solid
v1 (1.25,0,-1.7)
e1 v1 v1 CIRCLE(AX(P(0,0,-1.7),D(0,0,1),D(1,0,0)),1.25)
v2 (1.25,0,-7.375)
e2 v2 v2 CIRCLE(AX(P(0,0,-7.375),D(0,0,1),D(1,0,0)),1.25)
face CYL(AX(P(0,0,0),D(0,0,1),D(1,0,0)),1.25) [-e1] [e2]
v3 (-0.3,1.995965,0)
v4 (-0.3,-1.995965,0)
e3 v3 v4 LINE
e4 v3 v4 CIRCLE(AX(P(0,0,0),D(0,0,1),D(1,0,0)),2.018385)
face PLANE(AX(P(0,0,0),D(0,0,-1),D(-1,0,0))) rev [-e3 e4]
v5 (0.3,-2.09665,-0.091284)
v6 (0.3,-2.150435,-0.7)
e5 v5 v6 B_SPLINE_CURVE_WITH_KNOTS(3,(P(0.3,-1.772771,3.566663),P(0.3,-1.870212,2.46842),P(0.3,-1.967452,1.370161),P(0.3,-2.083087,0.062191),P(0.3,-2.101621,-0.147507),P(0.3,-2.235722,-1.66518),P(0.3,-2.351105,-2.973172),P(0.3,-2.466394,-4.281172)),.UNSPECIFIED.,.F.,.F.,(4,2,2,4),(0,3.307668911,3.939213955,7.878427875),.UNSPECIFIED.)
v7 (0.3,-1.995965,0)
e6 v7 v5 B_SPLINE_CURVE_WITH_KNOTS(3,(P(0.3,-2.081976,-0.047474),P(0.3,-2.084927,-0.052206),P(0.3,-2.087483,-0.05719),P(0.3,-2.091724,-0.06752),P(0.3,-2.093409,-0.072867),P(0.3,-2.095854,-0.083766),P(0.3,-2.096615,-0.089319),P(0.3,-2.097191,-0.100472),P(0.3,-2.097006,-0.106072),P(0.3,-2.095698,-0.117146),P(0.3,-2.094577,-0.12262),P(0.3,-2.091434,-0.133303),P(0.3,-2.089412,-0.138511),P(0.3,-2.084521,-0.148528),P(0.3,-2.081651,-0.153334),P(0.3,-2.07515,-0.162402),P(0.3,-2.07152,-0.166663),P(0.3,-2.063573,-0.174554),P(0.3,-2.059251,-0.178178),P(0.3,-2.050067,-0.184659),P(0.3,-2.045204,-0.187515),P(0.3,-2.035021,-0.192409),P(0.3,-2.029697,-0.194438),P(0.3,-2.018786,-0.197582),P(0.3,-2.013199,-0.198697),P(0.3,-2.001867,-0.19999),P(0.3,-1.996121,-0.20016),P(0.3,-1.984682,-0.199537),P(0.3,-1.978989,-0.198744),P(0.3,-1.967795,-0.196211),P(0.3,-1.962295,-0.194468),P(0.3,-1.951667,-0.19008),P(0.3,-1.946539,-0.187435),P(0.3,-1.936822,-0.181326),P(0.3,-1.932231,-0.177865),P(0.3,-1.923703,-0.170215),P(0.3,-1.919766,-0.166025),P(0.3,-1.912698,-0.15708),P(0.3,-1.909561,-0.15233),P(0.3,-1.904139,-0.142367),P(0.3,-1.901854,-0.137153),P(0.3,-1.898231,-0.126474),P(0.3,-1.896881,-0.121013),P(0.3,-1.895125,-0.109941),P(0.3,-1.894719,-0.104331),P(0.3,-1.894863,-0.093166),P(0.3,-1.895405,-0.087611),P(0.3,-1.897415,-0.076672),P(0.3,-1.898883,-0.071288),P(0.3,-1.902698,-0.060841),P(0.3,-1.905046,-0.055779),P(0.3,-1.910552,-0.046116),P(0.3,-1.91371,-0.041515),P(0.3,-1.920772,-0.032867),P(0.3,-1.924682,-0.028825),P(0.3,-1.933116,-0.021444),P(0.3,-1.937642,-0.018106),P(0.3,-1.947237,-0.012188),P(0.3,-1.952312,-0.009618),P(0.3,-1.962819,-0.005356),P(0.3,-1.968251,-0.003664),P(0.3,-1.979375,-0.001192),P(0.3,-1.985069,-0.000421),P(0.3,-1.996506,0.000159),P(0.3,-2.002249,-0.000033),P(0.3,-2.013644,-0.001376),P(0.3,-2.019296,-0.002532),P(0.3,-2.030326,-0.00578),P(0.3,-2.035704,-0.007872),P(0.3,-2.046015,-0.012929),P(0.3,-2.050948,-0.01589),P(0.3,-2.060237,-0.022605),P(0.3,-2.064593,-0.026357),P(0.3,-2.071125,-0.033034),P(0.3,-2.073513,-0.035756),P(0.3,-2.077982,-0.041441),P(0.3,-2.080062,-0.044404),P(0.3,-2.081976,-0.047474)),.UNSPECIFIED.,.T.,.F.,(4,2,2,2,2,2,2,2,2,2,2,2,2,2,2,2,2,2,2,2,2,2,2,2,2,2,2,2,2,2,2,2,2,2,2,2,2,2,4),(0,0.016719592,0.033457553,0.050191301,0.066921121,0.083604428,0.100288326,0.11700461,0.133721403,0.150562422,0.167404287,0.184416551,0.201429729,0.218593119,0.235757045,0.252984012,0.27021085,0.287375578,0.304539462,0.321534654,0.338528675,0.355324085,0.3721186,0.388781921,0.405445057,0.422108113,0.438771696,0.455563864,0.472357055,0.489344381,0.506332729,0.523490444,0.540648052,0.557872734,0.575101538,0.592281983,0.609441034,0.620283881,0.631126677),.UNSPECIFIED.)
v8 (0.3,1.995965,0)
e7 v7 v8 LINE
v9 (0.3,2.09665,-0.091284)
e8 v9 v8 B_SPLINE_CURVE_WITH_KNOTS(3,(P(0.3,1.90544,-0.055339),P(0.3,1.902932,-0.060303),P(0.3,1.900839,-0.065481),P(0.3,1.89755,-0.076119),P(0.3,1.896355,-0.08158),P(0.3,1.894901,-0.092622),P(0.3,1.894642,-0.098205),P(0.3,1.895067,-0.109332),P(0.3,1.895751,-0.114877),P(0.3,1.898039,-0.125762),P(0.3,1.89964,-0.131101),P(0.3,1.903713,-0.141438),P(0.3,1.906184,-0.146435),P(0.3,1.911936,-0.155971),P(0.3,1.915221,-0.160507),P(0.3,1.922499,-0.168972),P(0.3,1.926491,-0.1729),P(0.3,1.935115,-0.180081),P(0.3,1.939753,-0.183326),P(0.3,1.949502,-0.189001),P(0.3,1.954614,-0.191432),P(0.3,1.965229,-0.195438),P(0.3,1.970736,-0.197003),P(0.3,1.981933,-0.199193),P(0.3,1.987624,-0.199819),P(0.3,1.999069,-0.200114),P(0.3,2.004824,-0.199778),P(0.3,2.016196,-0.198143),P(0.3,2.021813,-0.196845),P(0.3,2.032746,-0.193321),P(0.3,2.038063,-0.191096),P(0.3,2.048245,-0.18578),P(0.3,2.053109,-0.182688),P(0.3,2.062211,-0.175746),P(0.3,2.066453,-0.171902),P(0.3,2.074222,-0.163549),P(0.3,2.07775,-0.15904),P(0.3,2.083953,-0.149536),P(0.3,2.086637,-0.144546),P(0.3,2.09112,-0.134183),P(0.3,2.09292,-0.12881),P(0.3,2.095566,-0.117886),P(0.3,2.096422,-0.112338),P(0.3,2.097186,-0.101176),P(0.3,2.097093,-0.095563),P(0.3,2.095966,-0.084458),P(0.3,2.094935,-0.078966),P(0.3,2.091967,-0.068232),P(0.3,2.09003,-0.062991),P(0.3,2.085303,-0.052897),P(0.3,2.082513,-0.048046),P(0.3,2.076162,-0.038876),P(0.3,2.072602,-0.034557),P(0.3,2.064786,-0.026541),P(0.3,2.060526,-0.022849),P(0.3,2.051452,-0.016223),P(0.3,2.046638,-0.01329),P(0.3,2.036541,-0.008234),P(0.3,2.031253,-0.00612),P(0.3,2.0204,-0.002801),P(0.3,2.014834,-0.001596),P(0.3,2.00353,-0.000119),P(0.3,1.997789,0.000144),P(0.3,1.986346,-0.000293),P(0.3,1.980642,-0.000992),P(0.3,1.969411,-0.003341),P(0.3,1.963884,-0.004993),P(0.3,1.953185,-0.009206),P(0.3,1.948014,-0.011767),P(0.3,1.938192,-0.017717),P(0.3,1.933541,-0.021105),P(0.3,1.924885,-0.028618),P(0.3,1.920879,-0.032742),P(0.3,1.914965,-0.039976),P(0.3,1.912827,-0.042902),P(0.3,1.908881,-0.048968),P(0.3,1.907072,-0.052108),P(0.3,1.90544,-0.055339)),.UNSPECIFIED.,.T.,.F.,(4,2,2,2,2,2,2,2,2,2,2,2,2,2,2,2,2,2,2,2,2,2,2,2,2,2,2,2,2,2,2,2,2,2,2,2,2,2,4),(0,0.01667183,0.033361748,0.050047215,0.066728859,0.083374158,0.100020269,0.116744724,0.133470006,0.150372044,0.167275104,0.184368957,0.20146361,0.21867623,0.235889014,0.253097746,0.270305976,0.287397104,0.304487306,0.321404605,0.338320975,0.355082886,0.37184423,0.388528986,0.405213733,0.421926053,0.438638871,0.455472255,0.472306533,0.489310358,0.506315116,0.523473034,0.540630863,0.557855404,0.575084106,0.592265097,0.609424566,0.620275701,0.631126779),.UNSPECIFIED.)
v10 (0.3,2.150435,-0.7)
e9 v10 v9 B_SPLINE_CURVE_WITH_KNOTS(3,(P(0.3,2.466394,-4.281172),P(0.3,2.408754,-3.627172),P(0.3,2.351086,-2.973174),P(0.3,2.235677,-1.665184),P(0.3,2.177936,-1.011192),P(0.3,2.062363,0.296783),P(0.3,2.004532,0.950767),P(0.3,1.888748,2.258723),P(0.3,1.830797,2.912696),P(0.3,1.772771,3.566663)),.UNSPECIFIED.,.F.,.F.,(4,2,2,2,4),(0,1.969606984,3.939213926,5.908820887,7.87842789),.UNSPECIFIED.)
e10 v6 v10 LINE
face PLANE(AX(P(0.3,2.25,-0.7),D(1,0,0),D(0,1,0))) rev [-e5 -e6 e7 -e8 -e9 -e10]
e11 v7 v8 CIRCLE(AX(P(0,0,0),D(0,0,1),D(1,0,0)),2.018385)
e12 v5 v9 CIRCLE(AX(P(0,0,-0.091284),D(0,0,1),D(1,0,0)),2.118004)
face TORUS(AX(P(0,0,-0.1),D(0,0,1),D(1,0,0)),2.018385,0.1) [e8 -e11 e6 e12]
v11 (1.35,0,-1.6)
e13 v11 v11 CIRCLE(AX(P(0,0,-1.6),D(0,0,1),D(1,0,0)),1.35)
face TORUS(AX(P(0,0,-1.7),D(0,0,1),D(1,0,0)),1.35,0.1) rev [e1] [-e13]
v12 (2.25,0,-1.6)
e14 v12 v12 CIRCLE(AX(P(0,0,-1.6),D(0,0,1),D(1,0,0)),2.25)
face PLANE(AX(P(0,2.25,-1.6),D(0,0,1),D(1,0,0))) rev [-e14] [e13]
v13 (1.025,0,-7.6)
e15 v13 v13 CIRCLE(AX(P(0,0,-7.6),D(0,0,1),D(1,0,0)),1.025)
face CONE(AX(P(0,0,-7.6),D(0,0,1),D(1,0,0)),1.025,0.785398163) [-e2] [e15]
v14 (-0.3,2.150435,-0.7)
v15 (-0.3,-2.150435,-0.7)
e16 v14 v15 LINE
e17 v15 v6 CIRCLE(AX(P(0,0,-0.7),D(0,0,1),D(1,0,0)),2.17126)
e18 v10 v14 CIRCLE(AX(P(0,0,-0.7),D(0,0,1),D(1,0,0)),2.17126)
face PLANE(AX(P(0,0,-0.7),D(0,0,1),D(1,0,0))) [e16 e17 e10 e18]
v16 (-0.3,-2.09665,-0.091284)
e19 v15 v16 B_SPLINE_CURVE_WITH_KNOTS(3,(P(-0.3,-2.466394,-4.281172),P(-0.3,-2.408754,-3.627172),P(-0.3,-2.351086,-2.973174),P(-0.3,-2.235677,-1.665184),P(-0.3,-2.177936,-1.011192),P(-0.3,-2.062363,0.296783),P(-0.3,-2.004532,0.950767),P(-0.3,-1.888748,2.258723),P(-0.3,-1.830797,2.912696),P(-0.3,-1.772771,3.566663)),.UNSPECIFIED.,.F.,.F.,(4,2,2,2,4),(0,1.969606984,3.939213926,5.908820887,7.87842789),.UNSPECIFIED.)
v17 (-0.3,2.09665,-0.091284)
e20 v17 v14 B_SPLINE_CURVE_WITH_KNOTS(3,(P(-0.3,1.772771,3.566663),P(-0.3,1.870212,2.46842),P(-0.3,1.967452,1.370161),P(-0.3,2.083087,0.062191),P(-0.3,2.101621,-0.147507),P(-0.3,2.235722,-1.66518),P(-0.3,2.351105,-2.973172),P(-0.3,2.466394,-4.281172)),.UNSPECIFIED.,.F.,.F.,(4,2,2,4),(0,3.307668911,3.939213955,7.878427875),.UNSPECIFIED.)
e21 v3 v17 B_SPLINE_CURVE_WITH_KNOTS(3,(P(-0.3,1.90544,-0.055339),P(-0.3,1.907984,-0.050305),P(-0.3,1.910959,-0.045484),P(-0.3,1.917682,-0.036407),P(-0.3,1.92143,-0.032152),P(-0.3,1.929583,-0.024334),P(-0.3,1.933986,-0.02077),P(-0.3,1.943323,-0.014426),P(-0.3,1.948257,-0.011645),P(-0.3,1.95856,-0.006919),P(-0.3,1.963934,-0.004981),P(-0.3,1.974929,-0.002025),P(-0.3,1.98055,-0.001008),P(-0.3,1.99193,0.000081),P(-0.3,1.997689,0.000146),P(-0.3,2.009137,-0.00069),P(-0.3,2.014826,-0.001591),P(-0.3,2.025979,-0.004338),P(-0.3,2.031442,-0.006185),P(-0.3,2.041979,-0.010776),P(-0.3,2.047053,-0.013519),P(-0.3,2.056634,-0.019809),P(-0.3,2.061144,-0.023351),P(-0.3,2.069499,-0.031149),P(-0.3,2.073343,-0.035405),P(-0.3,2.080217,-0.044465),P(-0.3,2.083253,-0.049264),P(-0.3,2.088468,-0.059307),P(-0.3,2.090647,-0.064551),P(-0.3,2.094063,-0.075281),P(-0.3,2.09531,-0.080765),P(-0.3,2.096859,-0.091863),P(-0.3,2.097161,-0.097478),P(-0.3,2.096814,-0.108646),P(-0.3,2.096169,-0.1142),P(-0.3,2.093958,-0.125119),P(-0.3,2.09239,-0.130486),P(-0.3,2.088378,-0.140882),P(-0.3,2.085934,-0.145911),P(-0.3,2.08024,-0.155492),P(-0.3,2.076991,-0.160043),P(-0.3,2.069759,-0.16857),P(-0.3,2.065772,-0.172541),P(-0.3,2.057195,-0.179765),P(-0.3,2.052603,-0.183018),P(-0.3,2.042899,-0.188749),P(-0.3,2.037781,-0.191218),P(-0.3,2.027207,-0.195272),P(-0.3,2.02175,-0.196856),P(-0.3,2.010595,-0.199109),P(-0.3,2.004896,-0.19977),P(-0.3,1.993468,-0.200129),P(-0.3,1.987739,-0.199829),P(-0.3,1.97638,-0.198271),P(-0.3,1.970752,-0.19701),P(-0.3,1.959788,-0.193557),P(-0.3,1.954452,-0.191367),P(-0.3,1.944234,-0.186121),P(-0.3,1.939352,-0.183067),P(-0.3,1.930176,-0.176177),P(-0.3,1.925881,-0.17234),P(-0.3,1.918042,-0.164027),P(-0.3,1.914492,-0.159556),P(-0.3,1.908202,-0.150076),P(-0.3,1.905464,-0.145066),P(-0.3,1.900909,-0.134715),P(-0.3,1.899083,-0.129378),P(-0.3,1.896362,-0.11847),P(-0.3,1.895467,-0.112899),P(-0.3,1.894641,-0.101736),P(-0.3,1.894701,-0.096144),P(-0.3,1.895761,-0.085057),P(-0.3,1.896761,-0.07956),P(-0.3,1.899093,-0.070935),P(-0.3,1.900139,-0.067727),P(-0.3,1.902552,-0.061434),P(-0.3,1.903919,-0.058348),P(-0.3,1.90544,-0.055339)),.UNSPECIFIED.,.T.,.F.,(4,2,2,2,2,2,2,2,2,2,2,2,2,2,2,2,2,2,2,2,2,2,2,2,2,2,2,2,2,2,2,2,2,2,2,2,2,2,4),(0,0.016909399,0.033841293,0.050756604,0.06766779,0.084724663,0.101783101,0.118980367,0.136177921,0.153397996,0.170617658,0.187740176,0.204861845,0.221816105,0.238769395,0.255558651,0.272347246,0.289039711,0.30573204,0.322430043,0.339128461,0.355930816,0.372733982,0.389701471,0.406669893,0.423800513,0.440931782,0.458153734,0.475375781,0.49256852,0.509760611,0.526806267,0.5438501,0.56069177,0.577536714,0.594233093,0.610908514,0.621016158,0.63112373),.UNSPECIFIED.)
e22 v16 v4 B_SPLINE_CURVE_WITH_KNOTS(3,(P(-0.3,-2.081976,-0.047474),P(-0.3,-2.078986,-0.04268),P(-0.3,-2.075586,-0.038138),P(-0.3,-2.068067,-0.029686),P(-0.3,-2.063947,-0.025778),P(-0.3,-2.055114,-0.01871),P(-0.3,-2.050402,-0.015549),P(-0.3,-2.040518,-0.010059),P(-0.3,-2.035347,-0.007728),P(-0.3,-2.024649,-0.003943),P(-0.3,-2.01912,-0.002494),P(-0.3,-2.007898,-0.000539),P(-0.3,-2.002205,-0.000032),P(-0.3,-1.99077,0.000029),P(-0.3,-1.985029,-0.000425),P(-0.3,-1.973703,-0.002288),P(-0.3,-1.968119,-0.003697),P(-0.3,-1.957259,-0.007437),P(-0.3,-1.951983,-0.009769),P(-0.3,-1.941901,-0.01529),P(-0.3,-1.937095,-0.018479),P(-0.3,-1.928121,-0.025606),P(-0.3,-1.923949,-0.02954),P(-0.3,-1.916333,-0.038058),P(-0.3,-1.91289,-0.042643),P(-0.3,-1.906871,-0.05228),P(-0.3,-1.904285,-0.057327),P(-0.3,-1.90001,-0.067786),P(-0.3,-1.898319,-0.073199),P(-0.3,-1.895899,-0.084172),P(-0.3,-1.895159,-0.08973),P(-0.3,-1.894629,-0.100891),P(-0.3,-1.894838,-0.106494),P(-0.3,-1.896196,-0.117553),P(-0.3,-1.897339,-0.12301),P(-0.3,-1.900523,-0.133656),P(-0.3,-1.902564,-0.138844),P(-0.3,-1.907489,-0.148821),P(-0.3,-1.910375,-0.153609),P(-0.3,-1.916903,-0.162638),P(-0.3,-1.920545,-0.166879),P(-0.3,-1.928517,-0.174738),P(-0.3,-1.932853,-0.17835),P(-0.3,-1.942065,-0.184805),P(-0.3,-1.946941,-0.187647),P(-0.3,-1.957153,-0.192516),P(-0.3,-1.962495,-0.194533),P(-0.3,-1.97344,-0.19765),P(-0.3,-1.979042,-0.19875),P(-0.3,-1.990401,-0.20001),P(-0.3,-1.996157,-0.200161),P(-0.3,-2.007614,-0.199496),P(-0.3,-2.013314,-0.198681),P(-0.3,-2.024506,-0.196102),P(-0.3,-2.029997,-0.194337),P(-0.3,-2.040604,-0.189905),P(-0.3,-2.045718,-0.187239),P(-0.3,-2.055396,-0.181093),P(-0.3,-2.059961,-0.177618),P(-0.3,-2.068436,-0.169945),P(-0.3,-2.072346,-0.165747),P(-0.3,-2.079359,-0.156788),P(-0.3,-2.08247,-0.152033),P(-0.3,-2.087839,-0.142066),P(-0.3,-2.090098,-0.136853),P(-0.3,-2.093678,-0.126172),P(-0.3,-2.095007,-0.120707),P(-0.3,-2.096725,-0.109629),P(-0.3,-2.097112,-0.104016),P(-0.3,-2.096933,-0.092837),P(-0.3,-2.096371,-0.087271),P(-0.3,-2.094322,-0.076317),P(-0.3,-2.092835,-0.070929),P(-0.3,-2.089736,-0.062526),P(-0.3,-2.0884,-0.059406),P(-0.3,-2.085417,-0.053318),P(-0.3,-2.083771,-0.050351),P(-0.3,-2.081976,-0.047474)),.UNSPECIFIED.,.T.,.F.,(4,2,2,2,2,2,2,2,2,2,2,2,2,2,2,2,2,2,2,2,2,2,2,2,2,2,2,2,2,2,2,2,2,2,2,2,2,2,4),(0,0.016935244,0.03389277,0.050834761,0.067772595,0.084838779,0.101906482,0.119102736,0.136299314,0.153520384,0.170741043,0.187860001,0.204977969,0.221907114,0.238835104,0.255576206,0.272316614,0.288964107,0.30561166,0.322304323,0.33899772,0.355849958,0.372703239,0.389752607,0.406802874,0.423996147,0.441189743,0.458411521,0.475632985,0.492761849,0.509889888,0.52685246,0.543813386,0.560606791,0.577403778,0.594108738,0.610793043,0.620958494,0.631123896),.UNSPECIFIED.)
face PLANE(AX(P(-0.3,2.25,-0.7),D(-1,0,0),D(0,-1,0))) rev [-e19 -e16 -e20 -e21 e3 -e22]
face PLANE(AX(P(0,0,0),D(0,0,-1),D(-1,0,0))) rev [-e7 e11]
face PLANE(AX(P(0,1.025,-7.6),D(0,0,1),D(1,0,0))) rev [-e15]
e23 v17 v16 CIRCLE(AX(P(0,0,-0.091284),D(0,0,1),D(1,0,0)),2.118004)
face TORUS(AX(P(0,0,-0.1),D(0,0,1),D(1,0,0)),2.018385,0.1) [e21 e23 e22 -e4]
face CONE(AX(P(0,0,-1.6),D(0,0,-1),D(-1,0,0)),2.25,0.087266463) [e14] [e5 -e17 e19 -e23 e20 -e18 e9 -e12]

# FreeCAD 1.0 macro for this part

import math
import FreeCAD as App
import Part
import Sketcher
from FreeCAD import Vector
Q = App.Units.Quantity


def add_polygon(sketch, points):
    """Adds a closed chain of lines whose ends are joined by coincident constraints."""
    first, n = sketch.GeometryCount, len(points)
    for a, b in zip(points, points[1:] + points[:1]):
        sketch.addGeometry(Part.LineSegment(App.Vector(*a, 0), App.Vector(*b, 0)), False)
    for i in range(n):
        sketch.addConstraint(Sketcher.Constraint("Coincident", first + i, 2, first + (i + 1) % n, 1))

doc = App.newDocument("Part")
body = doc.addObject("PartDesign::Body", "Body")

# Sketch on YZ plane
sketch1 = body.newObject("Sketcher::SketchObject", "Sketch")
sketch1.AttachmentSupport = (doc.getObject("YZ_Plane"), [""])
sketch1.MapMode = "FlatFace"
sketch1.addGeometry([
    Part.LineSegment(Vector(2.02, 0, 0), Vector(0, 0, 0)),  # 0
    Part.LineSegment(Vector(0, 0, 0), Vector(0, -7.6, 0)),  # 1
    Part.LineSegment(Vector(0, -7.6, 0), Vector(1.02, -7.6, 0)),  # 2
    Part.LineSegment(Vector(1.02, -7.6, 0), Vector(1.25, -7.38, 0)),  # 3
    Part.LineSegment(Vector(1.25, -7.38, 0), Vector(1.25, -1.7, 0)),  # 4
    Part.ArcOfCircle(Part.Circle(Vector(1.35, -1.7, 0), Vector(0, 0, 1), 0.1), math.radians(90), math.radians(180)),  # 5
    Part.LineSegment(Vector(1.35, -1.6, 0), Vector(2.25, -1.6, 0)),  # 6
    Part.LineSegment(Vector(2.25, -1.6, 0), Vector(2.12, -0.09, 0)),  # 7
    Part.ArcOfCircle(Part.Circle(Vector(2.02, -0.1, 0), Vector(0, 0, 1), 0.1), math.radians(5), math.radians(90)),  # 8
], False)
sketch1.addConstraint([
    Sketcher.Constraint("Coincident", 0, 2, 1, 1),
    Sketcher.Constraint("Coincident", 1, 2, 2, 1),
    Sketcher.Constraint("Coincident", 2, 2, 3, 1),
    Sketcher.Constraint("Coincident", 3, 2, 4, 1),
    Sketcher.Constraint("Tangent", 4, 2, 5, 2),
    Sketcher.Constraint("Tangent", 5, 1, 6, 1),
    Sketcher.Constraint("Coincident", 6, 2, 7, 1),
    Sketcher.Constraint("Tangent", 7, 2, 8, 1),
    Sketcher.Constraint("Tangent", 8, 2, 0, 1),
    Sketcher.Constraint("Horizontal", 0),
    Sketcher.Constraint("Vertical", 1),
    Sketcher.Constraint("Horizontal", 2),
    Sketcher.Constraint("Vertical", 4),
    Sketcher.Constraint("Horizontal", 6),
    Sketcher.Constraint("Coincident", 0, 2, -1, 1),
    Sketcher.Constraint("Equal", 5, 8),
    Sketcher.Constraint("Radius", 5, 0.1),
    Sketcher.Constraint("Angle", 3, Q("45 deg")),
    Sketcher.Constraint("Angle", 7, Q("95 deg")),
    Sketcher.Constraint("DistanceX", 6, 1, 6, 2, 0.9),
    Sketcher.Constraint("DistanceY", 1, 2, 1, 1, 7.6),
    Sketcher.Constraint("DistanceY", 5, 3, -1, 1, 1.7),
    Sketcher.Constraint("DistanceX", 2, 1, 2, 2, 1.025),
    Sketcher.Constraint("DistanceY", 4, 1, 4, 2, 5.675),
])
revolution = body.newObject("PartDesign::Revolution", "Revolution")
revolution.Profile = sketch1
revolution.ReferenceAxis = (sketch1, ["V_Axis"])
revolution.Angle = 360

# Sketch on XY plane
sketch2 = body.newObject("Sketcher::SketchObject", "Sketch001")
sketch2.AttachmentSupport = (doc.getObject("XY_Plane"), [""])
sketch2.MapMode = "FlatFace"
add_polygon(sketch2, [(-0.3, 2.2), (-0.3, -2.2), (0.3, -2.2), (0.3, 2.2)])  # lines 0-3
sketch2.addConstraint([
    Sketcher.Constraint("Vertical", 0),
    Sketcher.Constraint("Horizontal", 1),
    Sketcher.Constraint("Vertical", 2),
    Sketcher.Constraint("Horizontal", 3),
    Sketcher.Constraint("Symmetric", 0, 2, 2, 2, -1, 1),
    Sketcher.Constraint("DistanceX", 1, 1, 1, 2, 0.6),
    Sketcher.Constraint("DistanceY", 0, 2, 0, 1, 4.5),
])
pocket1 = body.newObject("PartDesign::Pocket", "Pocket")
pocket1.Profile = sketch2
pocket1.Length = 0.7

doc.recompute()
